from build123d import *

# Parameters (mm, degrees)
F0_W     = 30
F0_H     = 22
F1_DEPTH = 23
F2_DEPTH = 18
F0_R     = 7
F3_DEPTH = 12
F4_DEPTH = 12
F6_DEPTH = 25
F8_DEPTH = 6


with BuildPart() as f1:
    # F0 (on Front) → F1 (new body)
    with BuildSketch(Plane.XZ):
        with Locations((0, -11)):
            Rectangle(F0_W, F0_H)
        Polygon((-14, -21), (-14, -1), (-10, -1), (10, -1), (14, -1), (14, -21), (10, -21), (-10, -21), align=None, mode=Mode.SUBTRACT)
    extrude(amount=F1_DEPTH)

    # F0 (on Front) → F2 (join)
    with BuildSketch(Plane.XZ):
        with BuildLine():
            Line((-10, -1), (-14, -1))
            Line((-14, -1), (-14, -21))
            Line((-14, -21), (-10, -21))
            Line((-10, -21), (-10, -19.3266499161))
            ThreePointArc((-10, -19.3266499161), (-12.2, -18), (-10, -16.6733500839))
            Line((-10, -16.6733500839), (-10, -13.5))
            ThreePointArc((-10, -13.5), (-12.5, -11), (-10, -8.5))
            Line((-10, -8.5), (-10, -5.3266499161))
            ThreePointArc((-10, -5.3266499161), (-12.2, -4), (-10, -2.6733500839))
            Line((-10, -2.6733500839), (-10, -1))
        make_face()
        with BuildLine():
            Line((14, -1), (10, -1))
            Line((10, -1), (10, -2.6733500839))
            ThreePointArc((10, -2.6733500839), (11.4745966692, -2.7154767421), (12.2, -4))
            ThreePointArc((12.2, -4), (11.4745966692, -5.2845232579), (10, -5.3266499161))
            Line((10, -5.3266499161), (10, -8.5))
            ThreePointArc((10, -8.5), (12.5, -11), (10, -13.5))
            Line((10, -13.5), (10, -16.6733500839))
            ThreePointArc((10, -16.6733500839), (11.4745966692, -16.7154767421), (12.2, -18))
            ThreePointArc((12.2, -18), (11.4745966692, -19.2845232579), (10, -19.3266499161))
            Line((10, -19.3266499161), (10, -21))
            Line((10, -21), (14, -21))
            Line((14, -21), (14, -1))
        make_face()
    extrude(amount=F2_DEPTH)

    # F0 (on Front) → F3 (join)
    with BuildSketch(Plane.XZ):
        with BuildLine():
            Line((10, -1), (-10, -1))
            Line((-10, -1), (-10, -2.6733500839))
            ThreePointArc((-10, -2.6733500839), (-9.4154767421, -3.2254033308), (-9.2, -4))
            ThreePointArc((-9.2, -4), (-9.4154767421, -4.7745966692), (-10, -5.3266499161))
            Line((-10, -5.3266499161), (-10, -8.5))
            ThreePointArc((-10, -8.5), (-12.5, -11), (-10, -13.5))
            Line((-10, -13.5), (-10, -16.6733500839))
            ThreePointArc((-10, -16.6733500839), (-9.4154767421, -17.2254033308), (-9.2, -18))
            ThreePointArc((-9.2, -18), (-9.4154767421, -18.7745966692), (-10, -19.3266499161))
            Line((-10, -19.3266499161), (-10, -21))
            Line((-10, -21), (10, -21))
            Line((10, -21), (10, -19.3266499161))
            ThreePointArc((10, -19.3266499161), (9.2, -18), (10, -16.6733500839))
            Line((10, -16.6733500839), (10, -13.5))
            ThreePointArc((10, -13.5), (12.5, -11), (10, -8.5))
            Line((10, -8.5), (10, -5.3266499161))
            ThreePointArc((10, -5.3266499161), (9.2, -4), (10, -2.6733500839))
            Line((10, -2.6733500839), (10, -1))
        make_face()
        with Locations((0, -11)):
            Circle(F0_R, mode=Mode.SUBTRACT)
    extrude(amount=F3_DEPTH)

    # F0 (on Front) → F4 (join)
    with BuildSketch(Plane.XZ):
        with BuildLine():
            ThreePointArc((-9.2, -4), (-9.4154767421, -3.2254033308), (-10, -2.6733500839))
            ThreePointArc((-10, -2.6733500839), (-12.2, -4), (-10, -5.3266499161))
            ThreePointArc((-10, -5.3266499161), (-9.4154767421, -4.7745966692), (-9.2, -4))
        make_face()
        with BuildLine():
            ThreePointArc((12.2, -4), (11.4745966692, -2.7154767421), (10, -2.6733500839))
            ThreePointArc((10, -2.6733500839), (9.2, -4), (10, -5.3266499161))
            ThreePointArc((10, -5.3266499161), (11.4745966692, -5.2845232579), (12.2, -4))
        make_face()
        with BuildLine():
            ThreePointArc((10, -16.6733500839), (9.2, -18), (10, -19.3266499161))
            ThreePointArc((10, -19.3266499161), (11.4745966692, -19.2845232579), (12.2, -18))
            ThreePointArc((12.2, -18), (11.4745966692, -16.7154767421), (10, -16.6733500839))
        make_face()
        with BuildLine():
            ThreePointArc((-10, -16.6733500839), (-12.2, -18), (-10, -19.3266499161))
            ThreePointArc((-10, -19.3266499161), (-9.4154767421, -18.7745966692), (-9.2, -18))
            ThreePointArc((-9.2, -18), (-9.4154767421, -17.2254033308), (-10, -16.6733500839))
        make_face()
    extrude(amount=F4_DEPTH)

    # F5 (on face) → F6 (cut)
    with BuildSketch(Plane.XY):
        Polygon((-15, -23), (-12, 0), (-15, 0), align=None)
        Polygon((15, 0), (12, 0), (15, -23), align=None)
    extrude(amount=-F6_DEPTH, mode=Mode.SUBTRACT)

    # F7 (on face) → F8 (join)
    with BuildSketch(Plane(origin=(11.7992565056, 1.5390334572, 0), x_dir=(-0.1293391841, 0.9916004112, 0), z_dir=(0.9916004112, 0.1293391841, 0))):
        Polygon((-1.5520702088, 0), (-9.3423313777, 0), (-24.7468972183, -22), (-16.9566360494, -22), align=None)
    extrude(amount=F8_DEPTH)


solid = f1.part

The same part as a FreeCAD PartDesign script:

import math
import FreeCAD as App
import Part
import Sketcher

V = App.Vector
Q = App.Units.Quantity


def add_polygon(sketch, points):
    """Adds a closed chain of lines whose ends are joined by coincident constraints."""
    first, n = sketch.GeometryCount, len(points)
    for a, b in zip(points, points[1:] + points[:1]):
        sketch.addGeometry(Part.LineSegment(App.Vector(*a, 0), App.Vector(*b, 0)), False)
    for i in range(n):
        sketch.addConstraint(Sketcher.Constraint("Coincident", first + i, 2, first + (i + 1) % n, 1))

doc = App.newDocument("Part")
body = doc.addObject("PartDesign::Body", "Body")

# Sketch on XZ plane
sketch1 = doc.addObject("Sketcher::SketchObject", "Sketch")
body.addObject(sketch1)
sketch1.AttachmentSupport = (doc.XZ_Plane, [""])
sketch1.MapMode = "FlatFace"
add_polygon(sketch1, [(-15, 0), (-15, -22), (15, -22), (15, 0)])  # lines 0-3
add_polygon(sketch1, [(14, -21), (-14, -21), (-14, -1), (14, -1)])  # lines 4-7
sketch1.addConstraint(Sketcher.Constraint("Vertical", 0))
sketch1.addConstraint(Sketcher.Constraint("Horizontal", 1))
sketch1.addConstraint(Sketcher.Constraint("Vertical", 2))
sketch1.addConstraint(Sketcher.Constraint("Horizontal", 3))
sketch1.addConstraint(Sketcher.Constraint("Horizontal", 4))
sketch1.addConstraint(Sketcher.Constraint("Vertical", 5))
sketch1.addConstraint(Sketcher.Constraint("Horizontal", 6))
sketch1.addConstraint(Sketcher.Constraint("Vertical", 7))
sketch1.addConstraint(Sketcher.Constraint("Symmetric", 2, 2, 3, 2, -1, 1))
sketch1.addConstraint(Sketcher.Constraint("DistanceX", 1, 1, 1, 2, 30.0))
sketch1.addConstraint(Sketcher.Constraint("DistanceX", 4, 2, 4, 1, 28.0))
sketch1.addConstraint(Sketcher.Constraint("DistanceY", 0, 2, 0, 1, 22.0))
sketch1.addConstraint(Sketcher.Constraint("DistanceY", 5, 1, 5, 2, 20.0))
sketch1.addConstraint(Sketcher.Constraint("DistanceX", 4, 2, -1, 1, 14.0))
sketch1.addConstraint(Sketcher.Constraint("DistanceY", 4, 2, -1, 1, 21.0))
pad1 = doc.addObject("PartDesign::Pad", "Pad")
body.addObject(pad1)
pad1.Profile = sketch1
pad1.Length = 23

# Sketch on XZ plane
sketch2 = doc.addObject("Sketcher::SketchObject", "Sketch001")
body.addObject(sketch2)
sketch2.AttachmentSupport = (doc.XZ_Plane, [""])
sketch2.MapMode = "FlatFace"
sketch2.addGeometry(Part.LineSegment(V(-10, -1, 0), V(-14, -1, 0)), False)
sketch2.addGeometry(Part.LineSegment(V(-14, -1, 0), V(-14, -21, 0)), False)
sketch2.addGeometry(Part.LineSegment(V(-14, -21, 0), V(-10, -21, 0)), False)
sketch2.addGeometry(Part.LineSegment(V(-10, -21, 0), V(-10, -19.3, 0)), False)
sketch2.addGeometry(Part.ArcOfCircle(Part.Circle(V(-10.7, -18, 0), V(0, 0, 1), 1.5), math.radians(62), math.radians(298)), False)
sketch2.addGeometry(Part.LineSegment(V(-10, -16.7, 0), V(-10, -13.5, 0)), False)
sketch2.addGeometry(Part.ArcOfCircle(Part.Circle(V(-10, -11, 0), V(0, 0, 1), 2.5), math.radians(90), math.radians(270)), False)
sketch2.addGeometry(Part.LineSegment(V(-10, -8.5, 0), V(-10, -5.3, 0)), False)
sketch2.addGeometry(Part.ArcOfCircle(Part.Circle(V(-10.7, -4, 0), V(0, 0, 1), 1.5), math.radians(62), math.radians(298)), False)
sketch2.addGeometry(Part.LineSegment(V(-10, -2.7, 0), V(-10, -1, 0)), False)
sketch2.addGeometry(Part.LineSegment(V(14, -1, 0), V(10, -1, 0)), False)
sketch2.addGeometry(Part.LineSegment(V(10, -1, 0), V(10, -2.7, 0)), False)
sketch2.addGeometry(Part.ArcOfCircle(Part.Circle(V(10.7, -4, 0), V(0, 0, 1), 1.5), math.radians(0), math.radians(118)), False)
sketch2.addGeometry(Part.ArcOfCircle(Part.Circle(V(10.7, -4, 0), V(0, 0, 1), 1.5), math.radians(-118), math.radians(0)), False)
sketch2.addGeometry(Part.LineSegment(V(10, -5.3, 0), V(10, -8.5, 0)), False)
sketch2.addGeometry(Part.ArcOfCircle(Part.Circle(V(10, -11, 0), V(0, 0, 1), 2.5), math.radians(-90), math.radians(90)), False)
sketch2.addGeometry(Part.LineSegment(V(10, -13.5, 0), V(10, -16.7, 0)), False)
sketch2.addGeometry(Part.ArcOfCircle(Part.Circle(V(10.7, -18, 0), V(0, 0, 1), 1.5), math.radians(0), math.radians(118)), False)
sketch2.addGeometry(Part.ArcOfCircle(Part.Circle(V(10.7, -18, 0), V(0, 0, 1), 1.5), math.radians(-118), math.radians(0)), False)
sketch2.addGeometry(Part.LineSegment(V(10, -19.3, 0), V(10, -21, 0)), False)
sketch2.addGeometry(Part.LineSegment(V(10, -21, 0), V(14, -21, 0)), False)
sketch2.addGeometry(Part.LineSegment(V(14, -21, 0), V(14, -1, 0)), False)
sketch2.addConstraint(Sketcher.Constraint("Coincident", 0, 2, 1, 1))
sketch2.addConstraint(Sketcher.Constraint("Coincident", 1, 2, 2, 1))
sketch2.addConstraint(Sketcher.Constraint("Coincident", 2, 2, 3, 1))
sketch2.addConstraint(Sketcher.Constraint("Coincident", 3, 2, 4, 2))
sketch2.addConstraint(Sketcher.Constraint("Coincident", 4, 1, 5, 1))
sketch2.addConstraint(Sketcher.Constraint("Coincident", 5, 2, 6, 2))
sketch2.addConstraint(Sketcher.Constraint("Coincident", 6, 1, 7, 1))
sketch2.addConstraint(Sketcher.Constraint("Coincident", 7, 2, 8, 2))
sketch2.addConstraint(Sketcher.Constraint("Coincident", 8, 1, 9, 1))
sketch2.addConstraint(Sketcher.Constraint("Coincident", 9, 2, 0, 1))
sketch2.addConstraint(Sketcher.Constraint("Coincident", 10, 2, 11, 1))
sketch2.addConstraint(Sketcher.Constraint("Coincident", 11, 2, 12, 2))
sketch2.addConstraint(Sketcher.Constraint("Tangent", 12, 1, 13, 2))
sketch2.addConstraint(Sketcher.Constraint("Coincident", 13, 1, 14, 1))
sketch2.addConstraint(Sketcher.Constraint("Coincident", 14, 2, 15, 2))
sketch2.addConstraint(Sketcher.Constraint("Coincident", 15, 1, 16, 1))
sketch2.addConstraint(Sketcher.Constraint("Coincident", 16, 2, 17, 2))
sketch2.addConstraint(Sketcher.Constraint("Tangent", 17, 1, 18, 2))
sketch2.addConstraint(Sketcher.Constraint("Coincident", 18, 1, 19, 1))
sketch2.addConstraint(Sketcher.Constraint("Coincident", 19, 2, 20, 1))
sketch2.addConstraint(Sketcher.Constraint("Coincident", 20, 2, 21, 1))
sketch2.addConstraint(Sketcher.Constraint("Coincident", 21, 2, 10, 1))
sketch2.addConstraint(Sketcher.Constraint("Horizontal", 0))
sketch2.addConstraint(Sketcher.Constraint("Vertical", 1))
sketch2.addConstraint(Sketcher.Constraint("Horizontal", 2))
sketch2.addConstraint(Sketcher.Constraint("Vertical", 3))
sketch2.addConstraint(Sketcher.Constraint("Vertical", 5))
sketch2.addConstraint(Sketcher.Constraint("Vertical", 7))
sketch2.addConstraint(Sketcher.Constraint("Vertical", 9))
sketch2.addConstraint(Sketcher.Constraint("Horizontal", 10))
sketch2.addConstraint(Sketcher.Constraint("Vertical", 11))
sketch2.addConstraint(Sketcher.Constraint("Vertical", 14))
sketch2.addConstraint(Sketcher.Constraint("Vertical", 16))
sketch2.addConstraint(Sketcher.Constraint("Vertical", 19))
sketch2.addConstraint(Sketcher.Constraint("Horizontal", 20))
sketch2.addConstraint(Sketcher.Constraint("Vertical", 21))
sketch2.addConstraint(Sketcher.Constraint("Equal", 4, 8))
sketch2.addConstraint(Sketcher.Constraint("Equal", 8, 12))
sketch2.addConstraint(Sketcher.Constraint("Equal", 12, 13))
sketch2.addConstraint(Sketcher.Constraint("Equal", 6, 15))
sketch2.addConstraint(Sketcher.Constraint("Equal", 13, 17))
sketch2.addConstraint(Sketcher.Constraint("Equal", 17, 18))
sketch2.addConstraint(Sketcher.Constraint("Symmetric", 8, 3, 12, 3, -2))
sketch2.addConstraint(Sketcher.Constraint("Symmetric", 6, 3, 15, 3, -2))
sketch2.addConstraint(Sketcher.Constraint("Symmetric", 4, 3, 17, 3, -2))
sketch2.addConstraint(Sketcher.Constraint("Symmetric", 9, 2, 10, 2, -2))
sketch2.addConstraint(Sketcher.Constraint("Symmetric", 2, 2, 19, 2, -2))
sketch2.addConstraint(Sketcher.Constraint("Horizontal", 13, 3, 12, 1))
sketch2.addConstraint(Sketcher.Constraint("Horizontal", 7, 2, 13, 1))
sketch2.addConstraint(Sketcher.Constraint("Horizontal", 4, 1, 16, 2))
sketch2.addConstraint(Sketcher.Constraint("Horizontal", 18, 3, 17, 1))
sketch2.addConstraint(Sketcher.Constraint("Vertical", 4, 3, 8, 3))
sketch2.addConstraint(Sketcher.Constraint("Vertical", 6, 3, 2, 2))
sketch2.addConstraint(Sketcher.Constraint("Vertical", 3, 2, 4, 1))
sketch2.addConstraint(Sketcher.Constraint("Vertical", 5, 2, 6, 1))
sketch2.addConstraint(Sketcher.Constraint("Vertical", 7, 2, 8, 1))
sketch2.addConstraint(Sketcher.Constraint("Equal", 2, 10))
sketch2.addConstraint(Sketcher.Constraint("Equal", 5, 7))
sketch2.addConstraint(Sketcher.Constraint("Equal", 3, 9))
sketch2.addConstraint(Sketcher.Constraint("Radius", 4, 1.5))
sketch2.addConstraint(Sketcher.Constraint("Radius", 6, 2.5))
sketch2.addConstraint(Sketcher.Constraint("DistanceX", 0, 2, 0, 1, 4.0))
sketch2.addConstraint(Sketcher.Constraint("DistanceY", 1, 2, 1, 1, 20.0))
sketch2.addConstraint(Sketcher.Constraint("DistanceY", 4, 3, -1, 1, 18.0))
sketch2.addConstraint(Sketcher.Constraint("DistanceX", 6, 3, -1, 1, 10.0))
sketch2.addConstraint(Sketcher.Constraint("DistanceY", 6, 3, -1, 1, 11.0))
sketch2.addConstraint(Sketcher.Constraint("DistanceX", 4, 3, -1, 1, 10.7))
pad2 = doc.addObject("PartDesign::Pad", "Pad001")
body.addObject(pad2)
pad2.Profile = sketch2
pad2.Length = 18

# Sketch on XZ plane
sketch3 = doc.addObject("Sketcher::SketchObject", "Sketch002")
body.addObject(sketch3)
sketch3.AttachmentSupport = (doc.XZ_Plane, [""])
sketch3.MapMode = "FlatFace"
sketch3.addGeometry(Part.LineSegment(V(10, -1, 0), V(-10, -1, 0)), False)
sketch3.addGeometry(Part.LineSegment(V(-10, -1, 0), V(-10, -2.7, 0)), False)
sketch3.addGeometry(Part.ArcOfCircle(Part.Circle(V(-10.7, -4, 0), V(0, 0, 1), 1.5), math.radians(0), math.radians(62)), False)
sketch3.addGeometry(Part.ArcOfCircle(Part.Circle(V(-10.7, -4, 0), V(0, 0, 1), 1.5), math.radians(-62), math.radians(0)), False)
sketch3.addGeometry(Part.LineSegment(V(-10, -5.3, 0), V(-10, -8.5, 0)), False)
sketch3.addGeometry(Part.ArcOfCircle(Part.Circle(V(-10, -11, 0), V(0, 0, 1), 2.5), math.radians(90), math.radians(270)), False)
sketch3.addGeometry(Part.LineSegment(V(-10, -13.5, 0), V(-10, -16.7, 0)), False)
sketch3.addGeometry(Part.ArcOfCircle(Part.Circle(V(-10.7, -18, 0), V(0, 0, 1), 1.5), math.radians(0), math.radians(62)), False)
sketch3.addGeometry(Part.ArcOfCircle(Part.Circle(V(-10.7, -18, 0), V(0, 0, 1), 1.5), math.radians(-62), math.radians(0)), False)
sketch3.addGeometry(Part.LineSegment(V(-10, -19.3, 0), V(-10, -21, 0)), False)
sketch3.addGeometry(Part.LineSegment(V(-10, -21, 0), V(10, -21, 0)), False)
sketch3.addGeometry(Part.LineSegment(V(10, -21, 0), V(10, -19.3, 0)), False)
sketch3.addGeometry(Part.ArcOfCircle(Part.Circle(V(10.7, -18, 0), V(0, 0, 1), 1.5), math.radians(118), math.radians(242)), False)
sketch3.addGeometry(Part.LineSegment(V(10, -16.7, 0), V(10, -13.5, 0)), False)
sketch3.addGeometry(Part.ArcOfCircle(Part.Circle(V(10, -11, 0), V(0, 0, 1), 2.5), math.radians(-90), math.radians(90)), False)
sketch3.addGeometry(Part.LineSegment(V(10, -8.5, 0), V(10, -5.3, 0)), False)
sketch3.addGeometry(Part.ArcOfCircle(Part.Circle(V(10.7, -4, 0), V(0, 0, 1), 1.5), math.radians(118), math.radians(242)), False)
sketch3.addGeometry(Part.LineSegment(V(10, -2.7, 0), V(10, -1, 0)), False)
sketch3.addGeometry(Part.Circle(V(0, -11, 0), V(0, 0, 1), 7), False)
sketch3.addConstraint(Sketcher.Constraint("Coincident", 0, 2, 1, 1))
sketch3.addConstraint(Sketcher.Constraint("Coincident", 1, 2, 2, 2))
sketch3.addConstraint(Sketcher.Constraint("Tangent", 2, 1, 3, 2))
sketch3.addConstraint(Sketcher.Constraint("Coincident", 3, 1, 4, 1))
sketch3.addConstraint(Sketcher.Constraint("Coincident", 4, 2, 5, 1))
sketch3.addConstraint(Sketcher.Constraint("Coincident", 5, 2, 6, 1))
sketch3.addConstraint(Sketcher.Constraint("Coincident", 6, 2, 7, 2))
sketch3.addConstraint(Sketcher.Constraint("Tangent", 7, 1, 8, 2))
sketch3.addConstraint(Sketcher.Constraint("Coincident", 8, 1, 9, 1))
sketch3.addConstraint(Sketcher.Constraint("Coincident", 9, 2, 10, 1))
sketch3.addConstraint(Sketcher.Constraint("Coincident", 10, 2, 11, 1))
sketch3.addConstraint(Sketcher.Constraint("Coincident", 11, 2, 12, 2))
sketch3.addConstraint(Sketcher.Constraint("Coincident", 12, 1, 13, 1))
sketch3.addConstraint(Sketcher.Constraint("Coincident", 13, 2, 14, 1))
sketch3.addConstraint(Sketcher.Constraint("Coincident", 14, 2, 15, 1))
sketch3.addConstraint(Sketcher.Constraint("Coincident", 15, 2, 16, 2))
sketch3.addConstraint(Sketcher.Constraint("Coincident", 16, 1, 17, 1))
sketch3.addConstraint(Sketcher.Constraint("Coincident", 17, 2, 0, 1))
sketch3.addConstraint(Sketcher.Constraint("Horizontal", 0))
sketch3.addConstraint(Sketcher.Constraint("Vertical", 1))
sketch3.addConstraint(Sketcher.Constraint("Vertical", 4))
sketch3.addConstraint(Sketcher.Constraint("Vertical", 6))
sketch3.addConstraint(Sketcher.Constraint("Vertical", 9))
sketch3.addConstraint(Sketcher.Constraint("Horizontal", 10))
sketch3.addConstraint(Sketcher.Constraint("Vertical", 11))
sketch3.addConstraint(Sketcher.Constraint("Vertical", 13))
sketch3.addConstraint(Sketcher.Constraint("Vertical", 15))
sketch3.addConstraint(Sketcher.Constraint("Vertical", 17))
sketch3.addConstraint(Sketcher.Constraint("Equal", 2, 3))
sketch3.addConstraint(Sketcher.Constraint("Equal", 3, 7))
sketch3.addConstraint(Sketcher.Constraint("Equal", 7, 8))
sketch3.addConstraint(Sketcher.Constraint("Equal", 8, 12))
sketch3.addConstraint(Sketcher.Constraint("Equal", 5, 14))
sketch3.addConstraint(Sketcher.Constraint("Equal", 12, 16))
sketch3.addConstraint(Sketcher.Constraint("Symmetric", 7, 3, 12, 3, -2))
sketch3.addConstraint(Sketcher.Constraint("Symmetric", 5, 3, 14, 3, -2))
sketch3.addConstraint(Sketcher.Constraint("Symmetric", 2, 3, 16, 3, -2))
sketch3.addConstraint(Sketcher.Constraint("PointOnObject", 18, 3, -2))
sketch3.addConstraint(Sketcher.Constraint("Horizontal", 14, 3, 18, 3))
sketch3.addConstraint(Sketcher.Constraint("Horizontal", 16, 3, 2, 1))
sketch3.addConstraint(Sketcher.Constraint("Horizontal", 12, 3, 7, 1))
sketch3.addConstraint(Sketcher.Constraint("Horizontal", 8, 1, 11, 2))
sketch3.addConstraint(Sketcher.Constraint("Horizontal", 6, 2, 12, 1))
sketch3.addConstraint(Sketcher.Constraint("Horizontal", 3, 1, 15, 2))
sketch3.addConstraint(Sketcher.Constraint("Horizontal", 1, 2, 16, 1))
sketch3.addConstraint(Sketcher.Constraint("Vertical", 3, 3, 7, 3))
sketch3.addConstraint(Sketcher.Constraint("Vertical", 5, 3, 0, 2))
sketch3.addConstraint(Sketcher.Constraint("Vertical", 1, 2, 3, 1))
sketch3.addConstraint(Sketcher.Constraint("Vertical", 4, 2, 5, 2))
sketch3.addConstraint(Sketcher.Constraint("Vertical", 6, 2, 8, 1))
sketch3.addConstraint(Sketcher.Constraint("Equal", 4, 6))
sketch3.addConstraint(Sketcher.Constraint("Equal", 1, 9))
sketch3.addConstraint(Sketcher.Constraint("Diameter", 18, 14.0))
sketch3.addConstraint(Sketcher.Constraint("Radius", 2, 1.5))
sketch3.addConstraint(Sketcher.Constraint("Radius", 5, 2.5))
sketch3.addConstraint(Sketcher.Constraint("DistanceX", 0, 2, 0, 1, 20.0))
sketch3.addConstraint(Sketcher.Constraint("DistanceY", 2, 3, -1, 1, 4.0))
sketch3.addConstraint(Sketcher.Constraint("DistanceY", 5, 3, -1, 1, 11.0))
sketch3.addConstraint(Sketcher.Constraint("DistanceY", 0, 2, -1, 1, 1.0))
sketch3.addConstraint(Sketcher.Constraint("DistanceX", 2, 3, -1, 1, 10.7))
pad3 = doc.addObject("PartDesign::Pad", "Pad002")
body.addObject(pad3)
pad3.Profile = sketch3
pad3.Length = 12

# Sketch on XZ plane
sketch4 = doc.addObject("Sketcher::SketchObject", "Sketch003")
body.addObject(sketch4)
sketch4.AttachmentSupport = (doc.XZ_Plane, [""])
sketch4.MapMode = "FlatFace"
sketch4.addGeometry(Part.ArcOfCircle(Part.Circle(V(-10.7, -4, 0), V(0, 0, 1), 1.5), math.radians(0), math.radians(62)), False)
sketch4.addGeometry(Part.ArcOfCircle(Part.Circle(V(-10.7, -4, 0), V(0, 0, 1), 1.5), math.radians(62), math.radians(298)), False)
sketch4.addGeometry(Part.ArcOfCircle(Part.Circle(V(-10.7, -4, 0), V(0, 0, 1), 1.5), math.radians(-62), math.radians(0)), False)
sketch4.addGeometry(Part.ArcOfCircle(Part.Circle(V(10.7, -4, 0), V(0, 0, 1), 1.5), math.radians(0), math.radians(118)), False)
sketch4.addGeometry(Part.ArcOfCircle(Part.Circle(V(10.7, -4, 0), V(0, 0, 1), 1.5), math.radians(118), math.radians(242)), False)
sketch4.addGeometry(Part.ArcOfCircle(Part.Circle(V(10.7, -4, 0), V(0, 0, 1), 1.5), math.radians(-118), math.radians(0)), False)
sketch4.addGeometry(Part.ArcOfCircle(Part.Circle(V(10.7, -18, 0), V(0, 0, 1), 1.5), math.radians(118), math.radians(242)), False)
sketch4.addGeometry(Part.ArcOfCircle(Part.Circle(V(10.7, -18, 0), V(0, 0, 1), 1.5), math.radians(-118), math.radians(0)), False)
sketch4.addGeometry(Part.ArcOfCircle(Part.Circle(V(10.7, -18, 0), V(0, 0, 1), 1.5), math.radians(0), math.radians(118)), False)
sketch4.addGeometry(Part.ArcOfCircle(Part.Circle(V(-10.7, -18, 0), V(0, 0, 1), 1.5), math.radians(62), math.radians(298)), False)
sketch4.addGeometry(Part.ArcOfCircle(Part.Circle(V(-10.7, -18, 0), V(0, 0, 1), 1.5), math.radians(-62), math.radians(0)), False)
sketch4.addGeometry(Part.ArcOfCircle(Part.Circle(V(-10.7, -18, 0), V(0, 0, 1), 1.5), math.radians(0), math.radians(62)), False)
sketch4.addConstraint(Sketcher.Constraint("Tangent", 0, 2, 1, 1))
sketch4.addConstraint(Sketcher.Constraint("Tangent", 1, 2, 2, 1))
sketch4.addConstraint(Sketcher.Constraint("Tangent", 2, 2, 0, 1))
sketch4.addConstraint(Sketcher.Constraint("Tangent", 3, 2, 4, 1))
sketch4.addConstraint(Sketcher.Constraint("Tangent", 4, 2, 5, 1))
sketch4.addConstraint(Sketcher.Constraint("Tangent", 5, 2, 3, 1))
sketch4.addConstraint(Sketcher.Constraint("Tangent", 6, 2, 7, 1))
sketch4.addConstraint(Sketcher.Constraint("Tangent", 7, 2, 8, 1))
sketch4.addConstraint(Sketcher.Constraint("Tangent", 8, 2, 6, 1))
sketch4.addConstraint(Sketcher.Constraint("Tangent", 9, 2, 10, 1))
sketch4.addConstraint(Sketcher.Constraint("Tangent", 10, 2, 11, 1))
sketch4.addConstraint(Sketcher.Constraint("Tangent", 11, 2, 9, 1))
sketch4.addConstraint(Sketcher.Constraint("Equal", 2, 3))
sketch4.addConstraint(Sketcher.Constraint("Equal", 5, 6))
sketch4.addConstraint(Sketcher.Constraint("Equal", 8, 9))
sketch4.addConstraint(Sketcher.Constraint("Symmetric", 0, 3, 3, 3, -2))
sketch4.addConstraint(Sketcher.Constraint("Symmetric", 6, 3, 9, 3, -2))
sketch4.addConstraint(Sketcher.Constraint("Horizontal", 5, 3, 2, 2))
sketch4.addConstraint(Sketcher.Constraint("Horizontal", 0, 2, 3, 2))
sketch4.addConstraint(Sketcher.Constraint("Horizontal", 1, 2, 4, 2))
sketch4.addConstraint(Sketcher.Constraint("Horizontal", 2, 2, 5, 2))
sketch4.addConstraint(Sketcher.Constraint("Horizontal", 11, 3, 7, 2))
sketch4.addConstraint(Sketcher.Constraint("Horizontal", 6, 2, 9, 2))
sketch4.addConstraint(Sketcher.Constraint("Horizontal", 7, 2, 10, 2))
sketch4.addConstraint(Sketcher.Constraint("Horizontal", 8, 2, 11, 2))
sketch4.addConstraint(Sketcher.Constraint("Vertical", 5, 3, 6, 3))
sketch4.addConstraint(Sketcher.Constraint("Vertical", 0, 2, 1, 2))
sketch4.addConstraint(Sketcher.Constraint("Vertical", 4, 2, 6, 2))
sketch4.addConstraint(Sketcher.Constraint("Vertical", 6, 2, 8, 2))
sketch4.addConstraint(Sketcher.Constraint("Radius", 0, 1.5))
sketch4.addConstraint(Sketcher.Constraint("DistanceY", 0, 3, -1, 1, 4.0))
sketch4.addConstraint(Sketcher.Constraint("DistanceY", 6, 3, -1, 1, 18.0))
sketch4.addConstraint(Sketcher.Constraint("DistanceX", 0, 2, -1, 1, 10.0))
sketch4.addConstraint(Sketcher.Constraint("DistanceX", 0, 3, -1, 1, 10.7))
pad4 = doc.addObject("PartDesign::Pad", "Pad003")
body.addObject(pad4)
pad4.Profile = sketch4
pad4.Length = 12

# Sketch on XY plane
sketch5 = doc.addObject("Sketcher::SketchObject", "Sketch004")
body.addObject(sketch5)
sketch5.AttachmentSupport = (doc.XY_Plane, [""])
sketch5.MapMode = "FlatFace"
add_polygon(sketch5, [(-15, -23), (-12, 0), (-15, 0)])  # lines 0-2
add_polygon(sketch5, [(15, 0), (12, 0), (15, -23)])  # lines 3-5
sketch5.addConstraint(Sketcher.Constraint("Horizontal", 1))
sketch5.addConstraint(Sketcher.Constraint("Vertical", 2))
sketch5.addConstraint(Sketcher.Constraint("Horizontal", 3))
sketch5.addConstraint(Sketcher.Constraint("Vertical", 5))
sketch5.addConstraint(Sketcher.Constraint("Symmetric", 0, 2, 3, 2, -1, 1))
sketch5.addConstraint(Sketcher.Constraint("Symmetric", 2, 2, 4, 2, -2))
sketch5.addConstraint(Sketcher.Constraint("PointOnObject", 0, 2, -1))
sketch5.addConstraint(Sketcher.Constraint("DistanceX", 1, 2, 1, 1, 3.0))
sketch5.addConstraint(Sketcher.Constraint("DistanceY", 2, 2, 2, 1, 23.0))
sketch5.addConstraint(Sketcher.Constraint("DistanceX", 0, 2, -1, 1, 12.0))
pocket1 = doc.addObject("PartDesign::Pocket", "Pocket")
body.addObject(pocket1)
pocket1.Profile = sketch5
pocket1.Length = 25

# Sketch on an angled plane
sketch6 = doc.addObject("Sketcher::SketchObject", "Sketch005")
body.addObject(sketch6)
sketch6.Placement = App.Placement(V(11.799257, 1.539033, 0), App.Rotation(V(-0.129339184, 0.991600411, 0), V(0, 0, 1), V(0.991600411, 0.129339184, 0), "ZXY"))
add_polygon(sketch6, [(-2, 0), (-9, 0), (-25, -22), (-17, -22)])  # lines 0-3
sketch6.addConstraint(Sketcher.Constraint("Horizontal", 0))
sketch6.addConstraint(Sketcher.Constraint("Horizontal", 2))
sketch6.addConstraint(Sketcher.Constraint("PointOnObject", 0, 2, -1))
sketch6.addConstraint(Sketcher.Constraint("Parallel", 1, 3))
sketch6.addConstraint(Sketcher.Constraint("Angle", 1, Q("-125 deg")))
sketch6.addConstraint(Sketcher.Constraint("DistanceY", 1, 2, -1, 1, 22.0))
sketch6.addConstraint(Sketcher.Constraint("DistanceX", 0, 2, 0, 1, 7.790261))
sketch6.addConstraint(Sketcher.Constraint("DistanceX", 0, 2, -1, 1, 9.342331))
pad5 = doc.addObject("PartDesign::Pad", "Pad004")
body.addObject(pad5)
pad5.Profile = sketch6
pad5.Length = 6

doc.recompute()
